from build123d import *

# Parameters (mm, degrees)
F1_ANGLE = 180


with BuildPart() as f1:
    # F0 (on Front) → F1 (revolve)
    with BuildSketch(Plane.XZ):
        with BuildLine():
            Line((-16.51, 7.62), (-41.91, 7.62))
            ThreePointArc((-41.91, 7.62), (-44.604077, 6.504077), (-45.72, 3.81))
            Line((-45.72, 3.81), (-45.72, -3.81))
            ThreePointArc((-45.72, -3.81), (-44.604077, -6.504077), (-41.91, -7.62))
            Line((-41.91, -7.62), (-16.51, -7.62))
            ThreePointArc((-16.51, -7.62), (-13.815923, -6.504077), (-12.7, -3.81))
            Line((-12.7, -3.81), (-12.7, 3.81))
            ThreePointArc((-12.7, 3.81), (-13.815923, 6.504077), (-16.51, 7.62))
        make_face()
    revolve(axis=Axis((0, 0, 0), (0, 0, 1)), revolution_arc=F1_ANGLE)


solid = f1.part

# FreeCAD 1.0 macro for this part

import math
import FreeCAD as App
import Part
import Sketcher
Q = App.Units.Quantity

doc = App.newDocument("Part")
body = doc.addObject("PartDesign::Body", "Body")

# Sketch on XZ plane
sketch1 = body.newObject("Sketcher::SketchObject", "Sketch")
sketch1.AttachmentSupport = (doc.getObject("XZ_Plane"), [""])
sketch1.MapMode = "FlatFace"
sketch1.addGeometry([
    Part.LineSegment(App.Vector(-16.5, 7.6, 0), App.Vector(-41.9, 7.6, 0)),  # 0
    Part.ArcOfCircle(Part.Circle(App.Vector(-41.9, 3.8, 0), App.Vector(0, 0, 1), 3.8), math.radians(90), math.radians(180)),  # 1
    Part.LineSegment(App.Vector(-45.7, 3.8, 0), App.Vector(-45.7, -3.8, 0)),  # 2
    Part.ArcOfCircle(Part.Circle(App.Vector(-41.9, -3.8, 0), App.Vector(0, 0, 1), 3.8), math.radians(180), math.radians(270)),  # 3
    Part.LineSegment(App.Vector(-41.9, -7.6, 0), App.Vector(-16.5, -7.6, 0)),  # 4
    Part.ArcOfCircle(Part.Circle(App.Vector(-16.5, -3.8, 0), App.Vector(0, 0, 1), 3.8), math.radians(-90), math.radians(0)),  # 5
    Part.LineSegment(App.Vector(-12.7, -3.8, 0), App.Vector(-12.7, 3.8, 0)),  # 6
    Part.ArcOfCircle(Part.Circle(App.Vector(-16.5, 3.8, 0), App.Vector(0, 0, 1), 3.8), math.radians(0), math.radians(90)),  # 7
], False)
sketch1.addConstraint([
    Sketcher.Constraint("Tangent", 0, 2, 1, 1),
    Sketcher.Constraint("Tangent", 1, 2, 2, 1),
    Sketcher.Constraint("Tangent", 2, 2, 3, 1),
    Sketcher.Constraint("Tangent", 3, 2, 4, 1),
    Sketcher.Constraint("Tangent", 4, 2, 5, 1),
    Sketcher.Constraint("Tangent", 5, 2, 6, 1),
    Sketcher.Constraint("Tangent", 6, 2, 7, 1),
    Sketcher.Constraint("Tangent", 7, 2, 0, 1),
    Sketcher.Constraint("Horizontal", 0),
    Sketcher.Constraint("Vertical", 2),
    Sketcher.Constraint("Horizontal", 4),
    Sketcher.Constraint("Vertical", 6),
    Sketcher.Constraint("Equal", 1, 3),
    Sketcher.Constraint("Equal", 3, 5),
    Sketcher.Constraint("Equal", 5, 7),
    Sketcher.Constraint("DistanceX", 0, 2, 0, 1, Q("1 in")),
    Sketcher.Constraint("Radius", 1, Q("0.15 in")),
    Sketcher.Constraint("DistanceY", 2, 2, 2, 1, Q("0.3 in")),
    Sketcher.Constraint("DistanceY", -1, 1, 0, 2, Q("0.3 in")),
    Sketcher.Constraint("DistanceX", 1, 2, -1, 1, Q("1.8 in")),
])
revolution = body.newObject("PartDesign::Revolution", "Revolution")
revolution.Profile = sketch1
revolution.ReferenceAxis = (sketch1, ["V_Axis"])
revolution.Angle = 180

doc.recompute()
